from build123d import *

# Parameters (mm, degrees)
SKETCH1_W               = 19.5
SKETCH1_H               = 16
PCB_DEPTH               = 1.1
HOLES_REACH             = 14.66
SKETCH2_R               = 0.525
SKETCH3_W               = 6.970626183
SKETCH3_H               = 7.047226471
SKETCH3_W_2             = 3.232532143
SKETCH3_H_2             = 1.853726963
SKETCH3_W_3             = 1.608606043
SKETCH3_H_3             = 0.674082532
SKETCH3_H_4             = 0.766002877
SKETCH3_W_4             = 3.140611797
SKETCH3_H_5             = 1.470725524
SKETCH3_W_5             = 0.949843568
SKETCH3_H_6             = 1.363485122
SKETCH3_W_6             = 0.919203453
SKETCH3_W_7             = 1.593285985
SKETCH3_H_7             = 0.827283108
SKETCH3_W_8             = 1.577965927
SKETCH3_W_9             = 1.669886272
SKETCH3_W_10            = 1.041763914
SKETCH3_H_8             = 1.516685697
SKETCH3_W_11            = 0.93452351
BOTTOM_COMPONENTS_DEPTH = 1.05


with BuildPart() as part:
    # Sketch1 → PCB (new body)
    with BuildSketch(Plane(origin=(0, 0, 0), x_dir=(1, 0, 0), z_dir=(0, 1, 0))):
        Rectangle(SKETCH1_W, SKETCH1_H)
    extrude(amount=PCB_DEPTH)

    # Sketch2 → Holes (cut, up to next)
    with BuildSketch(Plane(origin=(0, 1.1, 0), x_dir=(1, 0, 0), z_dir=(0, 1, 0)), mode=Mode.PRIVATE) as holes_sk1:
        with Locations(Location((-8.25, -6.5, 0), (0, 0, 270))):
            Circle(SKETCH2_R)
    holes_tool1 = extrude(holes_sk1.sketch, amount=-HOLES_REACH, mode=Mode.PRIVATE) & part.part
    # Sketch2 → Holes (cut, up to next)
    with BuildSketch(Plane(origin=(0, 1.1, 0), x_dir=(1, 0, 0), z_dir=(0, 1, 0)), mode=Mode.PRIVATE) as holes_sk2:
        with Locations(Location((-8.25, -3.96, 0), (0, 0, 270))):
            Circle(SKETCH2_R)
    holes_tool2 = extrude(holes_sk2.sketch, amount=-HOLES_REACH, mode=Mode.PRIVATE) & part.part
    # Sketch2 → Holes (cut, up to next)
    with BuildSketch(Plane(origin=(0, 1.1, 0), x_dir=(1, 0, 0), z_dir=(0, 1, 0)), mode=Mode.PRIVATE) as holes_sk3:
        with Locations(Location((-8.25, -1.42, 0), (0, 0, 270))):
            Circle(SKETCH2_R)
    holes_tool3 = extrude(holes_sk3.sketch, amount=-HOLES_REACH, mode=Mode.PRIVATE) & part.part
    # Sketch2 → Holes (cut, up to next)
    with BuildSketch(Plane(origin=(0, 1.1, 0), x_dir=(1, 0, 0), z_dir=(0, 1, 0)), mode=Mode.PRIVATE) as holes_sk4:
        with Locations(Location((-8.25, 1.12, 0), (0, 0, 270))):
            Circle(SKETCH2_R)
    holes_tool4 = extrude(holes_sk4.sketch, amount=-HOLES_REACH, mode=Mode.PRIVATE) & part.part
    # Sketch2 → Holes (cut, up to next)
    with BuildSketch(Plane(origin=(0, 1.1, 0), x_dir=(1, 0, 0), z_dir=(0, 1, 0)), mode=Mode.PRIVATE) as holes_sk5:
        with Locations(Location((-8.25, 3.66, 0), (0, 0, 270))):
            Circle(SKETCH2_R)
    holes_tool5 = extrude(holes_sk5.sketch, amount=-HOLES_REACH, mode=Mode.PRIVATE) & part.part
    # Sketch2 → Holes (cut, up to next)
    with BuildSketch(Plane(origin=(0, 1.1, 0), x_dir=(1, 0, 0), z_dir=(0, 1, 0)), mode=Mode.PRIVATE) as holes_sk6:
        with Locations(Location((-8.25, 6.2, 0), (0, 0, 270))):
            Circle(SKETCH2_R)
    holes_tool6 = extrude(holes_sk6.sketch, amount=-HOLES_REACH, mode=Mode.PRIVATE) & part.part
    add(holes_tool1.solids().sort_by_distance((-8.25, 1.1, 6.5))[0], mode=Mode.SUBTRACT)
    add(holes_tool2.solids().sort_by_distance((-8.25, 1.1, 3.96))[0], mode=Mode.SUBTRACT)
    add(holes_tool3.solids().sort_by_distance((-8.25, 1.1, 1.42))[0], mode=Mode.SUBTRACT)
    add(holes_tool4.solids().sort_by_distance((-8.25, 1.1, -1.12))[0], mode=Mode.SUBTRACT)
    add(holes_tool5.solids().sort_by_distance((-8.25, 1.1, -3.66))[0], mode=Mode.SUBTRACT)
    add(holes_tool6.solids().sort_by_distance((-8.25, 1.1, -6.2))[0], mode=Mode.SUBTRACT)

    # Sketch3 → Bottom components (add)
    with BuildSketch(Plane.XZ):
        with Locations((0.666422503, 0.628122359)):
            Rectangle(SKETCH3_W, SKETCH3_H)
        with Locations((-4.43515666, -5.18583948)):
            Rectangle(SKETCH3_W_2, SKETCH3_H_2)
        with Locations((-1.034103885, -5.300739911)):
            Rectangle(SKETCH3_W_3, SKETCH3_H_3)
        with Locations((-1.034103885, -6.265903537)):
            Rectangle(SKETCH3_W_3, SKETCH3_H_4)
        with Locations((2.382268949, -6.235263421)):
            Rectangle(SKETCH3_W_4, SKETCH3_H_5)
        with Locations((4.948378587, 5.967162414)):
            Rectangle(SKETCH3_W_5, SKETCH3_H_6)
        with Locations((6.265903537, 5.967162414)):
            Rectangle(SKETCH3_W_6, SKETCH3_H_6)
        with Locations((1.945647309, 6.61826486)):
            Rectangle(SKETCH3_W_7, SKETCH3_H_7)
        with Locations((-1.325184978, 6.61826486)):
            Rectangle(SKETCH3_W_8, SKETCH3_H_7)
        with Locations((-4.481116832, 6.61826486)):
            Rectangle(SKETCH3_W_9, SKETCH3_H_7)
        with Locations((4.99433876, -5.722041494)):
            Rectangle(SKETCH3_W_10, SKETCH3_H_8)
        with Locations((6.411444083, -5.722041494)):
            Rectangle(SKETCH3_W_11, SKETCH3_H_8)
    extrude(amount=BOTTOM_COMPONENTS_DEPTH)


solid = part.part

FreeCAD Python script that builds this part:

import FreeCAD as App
import Part
import Sketcher

V = App.Vector
Q = App.Units.Quantity

doc = App.newDocument("Part")
body = doc.addObject("PartDesign::Body", "Body")

# Sketch on XZ plane
sketch1 = body.newObject("Sketcher::SketchObject", "Sketch")
sketch1.AttachmentSupport = (doc.getObject("XZ_Plane"), [""])
sketch1.MapMode = "FlatFace"
sketch1.addGeometry([
    Part.LineSegment(V(-10, -8, 0), V(-10, 8, 0)),
    Part.LineSegment(V(-10, 8, 0), V(10, 8, 0)),
    Part.LineSegment(V(10, 8, 0), V(10, -8, 0)),
    Part.LineSegment(V(10, -8, 0), V(-10, -8, 0)),
], False)
sketch1.addConstraint([
    Sketcher.Constraint("Coincident", 0, 2, 1, 1),
    Sketcher.Constraint("Coincident", 1, 2, 2, 1),
    Sketcher.Constraint("Coincident", 2, 2, 3, 1),
    Sketcher.Constraint("Coincident", 3, 2, 0, 1),
    Sketcher.Constraint("Vertical", 0),
    Sketcher.Constraint("Horizontal", 1),
    Sketcher.Constraint("Vertical", 2),
    Sketcher.Constraint("Horizontal", 3),
    Sketcher.Constraint("Symmetric", 0, 2, 2, 2, -1, 1),
    Sketcher.Constraint("DistanceY", 0, 1, 0, 2, Q("16 mm")),
    Sketcher.Constraint("DistanceX", 1, 1, 1, 2, Q("19.5 mm")),
])
pad1 = body.newObject("PartDesign::Pad", "Pad")
pad1.Profile = sketch1
pad1.Length = 1.1
pad1.Reversed = True

# Sketch on XZ plane
sketch2 = body.newObject("Sketcher::SketchObject", "Sketch001")
sketch2.AttachmentSupport = (doc.getObject("XZ_Plane"), [""])
sketch2.MapMode = "FlatFace"
sketch2.AttachmentOffset = App.Placement(V(0, 0, -1.1), App.Rotation())
sketch2.addGeometry(Part.Circle(V(-8.2, 6.5, 0), V(0, 0, 1), 0.5), False)
sketch2.addConstraint([
    Sketcher.Constraint("Diameter", 0, Q("1.05 mm")),
    Sketcher.Constraint("DistanceY", -1, 1, 0, 3, Q("6.5 mm")),
    Sketcher.Constraint("DistanceX", 0, 3, -1, 1, Q("8.25 mm")),
])
pocket1 = body.newObject("PartDesign::Pocket", "Pocket")
pocket1.Profile = sketch2
pocket1.Type = "UpToFirst"
pocket1.Reversed = True

# Sketch on XZ plane
sketch3 = body.newObject("Sketcher::SketchObject", "Sketch002")
sketch3.AttachmentSupport = (doc.getObject("XZ_Plane"), [""])
sketch3.MapMode = "FlatFace"
sketch3.AttachmentOffset = App.Placement(V(0, 0, -1.1), App.Rotation())
sketch3.addGeometry(Part.Circle(V(-8.2, 4, 0), V(0, 0, 1), 0.5), False)
sketch3.addConstraint([
    Sketcher.Constraint("Diameter", 0, Q("1.05 mm")),
    Sketcher.Constraint("DistanceX", 0, 3, -1, 1, Q("8.25 mm")),
    Sketcher.Constraint("DistanceY", -1, 1, 0, 3, Q("3.96 mm")),
])
pocket2 = body.newObject("PartDesign::Pocket", "Pocket001")
pocket2.Profile = sketch3
pocket2.Type = "UpToFirst"
pocket2.Reversed = True

# Sketch on XZ plane
sketch4 = body.newObject("Sketcher::SketchObject", "Sketch003")
sketch4.AttachmentSupport = (doc.getObject("XZ_Plane"), [""])
sketch4.MapMode = "FlatFace"
sketch4.AttachmentOffset = App.Placement(V(0, 0, -1.1), App.Rotation())
sketch4.addGeometry(Part.Circle(V(-8.2, 1.4, 0), V(0, 0, 1), 0.5), False)
sketch4.addConstraint([
    Sketcher.Constraint("Diameter", 0, Q("1.05 mm")),
    Sketcher.Constraint("DistanceX", 0, 3, -1, 1, Q("8.25 mm")),
    Sketcher.Constraint("DistanceY", -1, 1, 0, 3, Q("1.42 mm")),
])
pocket3 = body.newObject("PartDesign::Pocket", "Pocket002")
pocket3.Profile = sketch4
pocket3.Type = "UpToFirst"
pocket3.Reversed = True

# Sketch on XZ plane
sketch5 = body.newObject("Sketcher::SketchObject", "Sketch004")
sketch5.AttachmentSupport = (doc.getObject("XZ_Plane"), [""])
sketch5.MapMode = "FlatFace"
sketch5.AttachmentOffset = App.Placement(V(0, 0, -1.1), App.Rotation())
sketch5.addGeometry(Part.Circle(V(-8.2, -1.1, 0), V(0, 0, 1), 0.5), False)
sketch5.addConstraint([
    Sketcher.Constraint("Diameter", 0, Q("1.05 mm")),
    Sketcher.Constraint("DistanceX", 0, 3, -1, 1, Q("8.25 mm")),
    Sketcher.Constraint("DistanceY", 0, 3, -1, 1, Q("1.12 mm")),
])
pocket4 = body.newObject("PartDesign::Pocket", "Pocket003")
pocket4.Profile = sketch5
pocket4.Type = "UpToFirst"
pocket4.Reversed = True

# Sketch on XZ plane
sketch6 = body.newObject("Sketcher::SketchObject", "Sketch005")
sketch6.AttachmentSupport = (doc.getObject("XZ_Plane"), [""])
sketch6.MapMode = "FlatFace"
sketch6.AttachmentOffset = App.Placement(V(0, 0, -1.1), App.Rotation())
sketch6.addGeometry(Part.Circle(V(-8.2, -3.7, 0), V(0, 0, 1), 0.5), False)
sketch6.addConstraint([
    Sketcher.Constraint("Diameter", 0, Q("1.05 mm")),
    Sketcher.Constraint("DistanceX", 0, 3, -1, 1, Q("8.25 mm")),
    Sketcher.Constraint("DistanceY", 0, 3, -1, 1, Q("3.66 mm")),
])
pocket5 = body.newObject("PartDesign::Pocket", "Pocket004")
pocket5.Profile = sketch6
pocket5.Type = "UpToFirst"
pocket5.Reversed = True

# Sketch on XZ plane
sketch7 = body.newObject("Sketcher::SketchObject", "Sketch006")
sketch7.AttachmentSupport = (doc.getObject("XZ_Plane"), [""])
sketch7.MapMode = "FlatFace"
sketch7.AttachmentOffset = App.Placement(V(0, 0, -1.1), App.Rotation())
sketch7.addGeometry(Part.Circle(V(-8.2, -6.2, 0), V(0, 0, 1), 0.5), False)
sketch7.addConstraint([
    Sketcher.Constraint("Diameter", 0, Q("1.05 mm")),
    Sketcher.Constraint("DistanceY", 0, 3, -1, 1, Q("6.2 mm")),
    Sketcher.Constraint("DistanceX", 0, 3, -1, 1, Q("8.25 mm")),
])
pocket6 = body.newObject("PartDesign::Pocket", "Pocket005")
pocket6.Profile = sketch7
pocket6.Type = "UpToFirst"
pocket6.Reversed = True

# Sketch on XZ plane
sketch8 = body.newObject("Sketcher::SketchObject", "Sketch007")
sketch8.AttachmentSupport = (doc.getObject("XZ_Plane"), [""])
sketch8.MapMode = "FlatFace"
sketch8.addGeometry([
    Part.LineSegment(V(-2.8, 4.2, 0), V(-2.8, -2.9, 0)),  # 0
    Part.LineSegment(V(-2.8, -2.9, 0), V(4.2, -2.9, 0)),  # 1
    Part.LineSegment(V(4.2, -2.9, 0), V(4.2, 4.2, 0)),  # 2
    Part.LineSegment(V(4.2, 4.2, 0), V(-2.8, 4.2, 0)),  # 3
    Part.LineSegment(V(-6.1, -4.3, 0), V(-6.1, -6.1, 0)),  # 4
    Part.LineSegment(V(-6.1, -6.1, 0), V(-2.8, -6.1, 0)),  # 5
    Part.LineSegment(V(-2.8, -6.1, 0), V(-2.8, -4.3, 0)),  # 6
    Part.LineSegment(V(-2.8, -4.3, 0), V(-6.1, -4.3, 0)),  # 7
    Part.LineSegment(V(-1.8, -5, 0), V(-1.8, -5.6, 0)),  # 8
    Part.LineSegment(V(-1.8, -5.6, 0), V(-0.2, -5.6, 0)),  # 9
    Part.LineSegment(V(-0.2, -5.6, 0), V(-0.2, -5, 0)),  # 10
    Part.LineSegment(V(-0.2, -5, 0), V(-1.8, -5, 0)),  # 11
    Part.LineSegment(V(-1.8, -5.9, 0), V(-1.8, -6.6, 0)),  # 12
    Part.LineSegment(V(-1.8, -6.6, 0), V(-0.2, -6.6, 0)),  # 13
    Part.LineSegment(V(-0.2, -6.6, 0), V(-0.2, -5.9, 0)),  # 14
    Part.LineSegment(V(-0.2, -5.9, 0), V(-1.8, -5.9, 0)),  # 15
    Part.LineSegment(V(0.8, -5.5, 0), V(0.8, -7, 0)),  # 16
    Part.LineSegment(V(0.8, -7, 0), V(4, -7, 0)),  # 17
    Part.LineSegment(V(4, -7, 0), V(4, -5.5, 0)),  # 18
    Part.LineSegment(V(4, -5.5, 0), V(0.8, -5.5, 0)),  # 19
    Part.LineSegment(V(4.5, 6.6, 0), V(4.5, 5.3, 0)),  # 20
    Part.LineSegment(V(4.5, 5.3, 0), V(5.4, 5.3, 0)),  # 21
    Part.LineSegment(V(5.4, 5.3, 0), V(5.4, 6.6, 0)),  # 22
    Part.LineSegment(V(5.4, 6.6, 0), V(4.5, 6.6, 0)),  # 23
    Part.LineSegment(V(5.8, 6.6, 0), V(5.8, 5.3, 0)),  # 24
    Part.LineSegment(V(5.8, 5.3, 0), V(6.7, 5.3, 0)),  # 25
    Part.LineSegment(V(6.7, 5.3, 0), V(6.7, 6.6, 0)),  # 26
    Part.LineSegment(V(6.7, 6.6, 0), V(5.8, 6.6, 0)),  # 27
    Part.LineSegment(V(1.1, 7, 0), V(1.1, 6.2, 0)),  # 28
    Part.LineSegment(V(1.1, 6.2, 0), V(2.7, 6.2, 0)),  # 29
    Part.LineSegment(V(2.7, 6.2, 0), V(2.7, 7, 0)),  # 30
    Part.LineSegment(V(2.7, 7, 0), V(1.1, 7, 0)),  # 31
    Part.LineSegment(V(-2.1, 7, 0), V(-2.1, 6.2, 0)),  # 32
    Part.LineSegment(V(-2.1, 6.2, 0), V(-0.5, 6.2, 0)),  # 33
    Part.LineSegment(V(-0.5, 6.2, 0), V(-0.5, 7, 0)),  # 34
    Part.LineSegment(V(-0.5, 7, 0), V(-2.1, 7, 0)),  # 35
    Part.LineSegment(V(-5.3, 7, 0), V(-5.3, 6.2, 0)),  # 36
    Part.LineSegment(V(-5.3, 6.2, 0), V(-3.6, 6.2, 0)),  # 37
    Part.LineSegment(V(-3.6, 6.2, 0), V(-3.6, 7, 0)),  # 38
    Part.LineSegment(V(-3.6, 7, 0), V(-5.3, 7, 0)),  # 39
    Part.LineSegment(V(4.5, -5, 0), V(4.5, -6.5, 0)),  # 40
    Part.LineSegment(V(4.5, -6.5, 0), V(5.5, -6.5, 0)),  # 41
    Part.LineSegment(V(5.5, -6.5, 0), V(5.5, -5, 0)),  # 42
    Part.LineSegment(V(5.5, -5, 0), V(4.5, -5, 0)),  # 43
    Part.LineSegment(V(5.9, -5, 0), V(5.9, -6.5, 0)),  # 44
    Part.LineSegment(V(5.9, -6.5, 0), V(6.9, -6.5, 0)),  # 45
    Part.LineSegment(V(6.9, -6.5, 0), V(6.9, -5, 0)),  # 46
    Part.LineSegment(V(6.9, -5, 0), V(5.9, -5, 0)),  # 47
], False)
sketch8.addConstraint([
    Sketcher.Constraint("Coincident", 0, 2, 1, 1),
    Sketcher.Constraint("Coincident", 1, 2, 2, 1),
    Sketcher.Constraint("Coincident", 2, 2, 3, 1),
    Sketcher.Constraint("Coincident", 3, 2, 0, 1),
    Sketcher.Constraint("Coincident", 4, 2, 5, 1),
    Sketcher.Constraint("Coincident", 5, 2, 6, 1),
    Sketcher.Constraint("Coincident", 6, 2, 7, 1),
    Sketcher.Constraint("Coincident", 7, 2, 4, 1),
    Sketcher.Constraint("Coincident", 8, 2, 9, 1),
    Sketcher.Constraint("Coincident", 9, 2, 10, 1),
    Sketcher.Constraint("Coincident", 10, 2, 11, 1),
    Sketcher.Constraint("Coincident", 11, 2, 8, 1),
    Sketcher.Constraint("Coincident", 12, 2, 13, 1),
    Sketcher.Constraint("Coincident", 13, 2, 14, 1),
    Sketcher.Constraint("Coincident", 14, 2, 15, 1),
    Sketcher.Constraint("Coincident", 15, 2, 12, 1),
    Sketcher.Constraint("Coincident", 16, 2, 17, 1),
    Sketcher.Constraint("Coincident", 17, 2, 18, 1),
    Sketcher.Constraint("Coincident", 18, 2, 19, 1),
    Sketcher.Constraint("Coincident", 19, 2, 16, 1),
    Sketcher.Constraint("Coincident", 20, 2, 21, 1),
    Sketcher.Constraint("Coincident", 21, 2, 22, 1),
    Sketcher.Constraint("Coincident", 22, 2, 23, 1),
    Sketcher.Constraint("Coincident", 23, 2, 20, 1),
    Sketcher.Constraint("Coincident", 24, 2, 25, 1),
    Sketcher.Constraint("Coincident", 25, 2, 26, 1),
    Sketcher.Constraint("Coincident", 26, 2, 27, 1),
    Sketcher.Constraint("Coincident", 27, 2, 24, 1),
    Sketcher.Constraint("Coincident", 28, 2, 29, 1),
    Sketcher.Constraint("Coincident", 29, 2, 30, 1),
    Sketcher.Constraint("Coincident", 30, 2, 31, 1),
    Sketcher.Constraint("Coincident", 31, 2, 28, 1),
    Sketcher.Constraint("Coincident", 32, 2, 33, 1),
    Sketcher.Constraint("Coincident", 33, 2, 34, 1),
    Sketcher.Constraint("Coincident", 34, 2, 35, 1),
    Sketcher.Constraint("Coincident", 35, 2, 32, 1),
    Sketcher.Constraint("Coincident", 36, 2, 37, 1),
    Sketcher.Constraint("Coincident", 37, 2, 38, 1),
    Sketcher.Constraint("Coincident", 38, 2, 39, 1),
    Sketcher.Constraint("Coincident", 39, 2, 36, 1),
    Sketcher.Constraint("Coincident", 40, 2, 41, 1),
    Sketcher.Constraint("Coincident", 41, 2, 42, 1),
    Sketcher.Constraint("Coincident", 42, 2, 43, 1),
    Sketcher.Constraint("Coincident", 43, 2, 40, 1),
    Sketcher.Constraint("Coincident", 44, 2, 45, 1),
    Sketcher.Constraint("Coincident", 45, 2, 46, 1),
    Sketcher.Constraint("Coincident", 46, 2, 47, 1),
    Sketcher.Constraint("Coincident", 47, 2, 44, 1),
    Sketcher.Constraint("Vertical", 0),
    Sketcher.Constraint("Horizontal", 1),
    Sketcher.Constraint("Vertical", 2),
    Sketcher.Constraint("Horizontal", 3),
    Sketcher.Constraint("Vertical", 4),
    Sketcher.Constraint("Horizontal", 5),
    Sketcher.Constraint("Vertical", 6),
    Sketcher.Constraint("Horizontal", 7),
    Sketcher.Constraint("Vertical", 8),
    Sketcher.Constraint("Horizontal", 9),
    Sketcher.Constraint("Vertical", 10),
    Sketcher.Constraint("Horizontal", 11),
    Sketcher.Constraint("Vertical", 12),
    Sketcher.Constraint("Horizontal", 13),
    Sketcher.Constraint("Vertical", 14),
    Sketcher.Constraint("Horizontal", 15),
    Sketcher.Constraint("Vertical", 16),
    Sketcher.Constraint("Horizontal", 17),
    Sketcher.Constraint("Vertical", 18),
    Sketcher.Constraint("Horizontal", 19),
    Sketcher.Constraint("Vertical", 20),
    Sketcher.Constraint("Horizontal", 21),
    Sketcher.Constraint("Vertical", 22),
    Sketcher.Constraint("Horizontal", 23),
    Sketcher.Constraint("Vertical", 24),
    Sketcher.Constraint("Horizontal", 25),
    Sketcher.Constraint("Vertical", 26),
    Sketcher.Constraint("Horizontal", 27),
    Sketcher.Constraint("Vertical", 28),
    Sketcher.Constraint("Horizontal", 29),
    Sketcher.Constraint("Vertical", 30),
    Sketcher.Constraint("Horizontal", 31),
    Sketcher.Constraint("Vertical", 32),
    Sketcher.Constraint("Horizontal", 33),
    Sketcher.Constraint("Vertical", 34),
    Sketcher.Constraint("Horizontal", 35),
    Sketcher.Constraint("Vertical", 36),
    Sketcher.Constraint("Horizontal", 37),
    Sketcher.Constraint("Vertical", 38),
    Sketcher.Constraint("Horizontal", 39),
    Sketcher.Constraint("Vertical", 40),
    Sketcher.Constraint("Horizontal", 41),
    Sketcher.Constraint("Vertical", 42),
    Sketcher.Constraint("Horizontal", 43),
    Sketcher.Constraint("Vertical", 44),
    Sketcher.Constraint("Horizontal", 45),
    Sketcher.Constraint("Vertical", 46),
    Sketcher.Constraint("Horizontal", 47),
    Sketcher.Constraint("Horizontal", 21, 2, 24, 2),
    Sketcher.Constraint("Horizontal", 23, 2, 26, 2),
    Sketcher.Constraint("Horizontal", 29, 2, 32, 2),
    Sketcher.Constraint("Horizontal", 31, 2, 34, 2),
    Sketcher.Constraint("Horizontal", 33, 2, 36, 2),
    Sketcher.Constraint("Horizontal", 35, 2, 38, 2),
    Sketcher.Constraint("Horizontal", 11, 2, 42, 2),
    Sketcher.Constraint("Horizontal", 41, 2, 44, 2),
    Sketcher.Constraint("Horizontal", 43, 2, 46, 2),
    Sketcher.Constraint("Vertical", 3, 2, 5, 2),
    Sketcher.Constraint("Vertical", 11, 2, 12, 2),
    Sketcher.Constraint("Vertical", 10, 2, 13, 2),
    Sketcher.Constraint("Vertical", 23, 2, 40, 2),
    Sketcher.Constraint("DistanceY", 14, 2, 18, 2, Q("0.383001 mm")),
    Sketcher.Constraint("DistanceX", 21, 2, 24, 2, Q("0.383001 mm")),
    Sketcher.Constraint("DistanceY", 23, 2, 30, 2, Q("0.383001 mm")),
    Sketcher.Constraint("DistanceX", 17, 1, 17, 2, Q("3.140612 mm")),
    Sketcher.Constraint("DistanceX", 9, 2, -1, 1, Q("0.229801 mm")),
    Sketcher.Constraint("DistanceY", 10, 2, -1, 1, Q("4.963699 mm")),
    Sketcher.Constraint("DistanceY", 18, 2, -1, 1, Q("5.499901 mm")),
    Sketcher.Constraint("DistanceX", -1, 1, 21, 2, Q("5.4233 mm")),
    Sketcher.Constraint("DistanceY", 5, 2, 15, 2, Q("0.229801 mm")),
    Sketcher.Constraint("DistanceX", 1, 1, 1, 2, Q("6.970626 mm")),
    Sketcher.Constraint("DistanceX", 5, 1, 5, 2, Q("3.232532 mm")),
    Sketcher.Constraint("DistanceX", 9, 1, 9, 2, Q("1.608606 mm")),
    Sketcher.Constraint("DistanceX", 21, 1, 21, 2, Q("0.949844 mm")),
    Sketcher.Constraint("DistanceX", 25, 1, 25, 2, Q("0.919203 mm")),
    Sketcher.Constraint("DistanceX", 29, 1, 29, 2, Q("1.593286 mm")),
    Sketcher.Constraint("DistanceX", 33, 1, 33, 2, Q("1.577966 mm")),
    Sketcher.Constraint("DistanceX", 37, 1, 37, 2, Q("1.669886 mm")),
    Sketcher.Constraint("DistanceX", 41, 1, 41, 2, Q("1.041764 mm")),
    Sketcher.Constraint("DistanceX", 45, 1, 45, 2, Q("0.934524 mm")),
    Sketcher.Constraint("DistanceY", 0, 2, 0, 1, Q("7.047226 mm")),
    Sketcher.Constraint("DistanceY", 4, 2, 4, 1, Q("1.853727 mm")),
    Sketcher.Constraint("DistanceY", 8, 2, 8, 1, Q("0.674083 mm")),
    Sketcher.Constraint("DistanceY", 12, 2, 12, 1, Q("0.766003 mm")),
    Sketcher.Constraint("DistanceY", 16, 2, 16, 1, Q("1.470726 mm")),
    Sketcher.Constraint("DistanceY", 20, 2, 20, 1, Q("1.363485 mm")),
    Sketcher.Constraint("DistanceY", 28, 2, 28, 1, Q("0.827283 mm")),
    Sketcher.Constraint("DistanceY", 40, 2, 40, 1, Q("1.516686 mm")),
    Sketcher.Constraint("DistanceX", 0, 2, -1, 1, Q("2.818891 mm")),
    Sketcher.Constraint("DistanceY", 0, 2, -1, 1, Q("2.895491 mm")),
    Sketcher.Constraint("DistanceY", -1, 1, 20, 2, Q("5.28542 mm")),
    Sketcher.Constraint("DistanceX", -1, 1, 29, 2, Q("2.74229 mm")),
    Sketcher.Constraint("DistanceX", 36, 2, -1, 1, Q("5.31606 mm")),
    Sketcher.Constraint("DistanceX", 12, 2, 16, 2, Q("2.65037 mm")),
    Sketcher.Constraint("DistanceX", 32, 2, 29, 2, Q("4.856458 mm")),
    Sketcher.Constraint("DistanceX", 41, 2, 44, 2, Q("0.428962 mm")),
])
pad2 = body.newObject("PartDesign::Pad", "Pad001")
pad2.Profile = sketch8
pad2.Length = 1.05

doc.recompute()
